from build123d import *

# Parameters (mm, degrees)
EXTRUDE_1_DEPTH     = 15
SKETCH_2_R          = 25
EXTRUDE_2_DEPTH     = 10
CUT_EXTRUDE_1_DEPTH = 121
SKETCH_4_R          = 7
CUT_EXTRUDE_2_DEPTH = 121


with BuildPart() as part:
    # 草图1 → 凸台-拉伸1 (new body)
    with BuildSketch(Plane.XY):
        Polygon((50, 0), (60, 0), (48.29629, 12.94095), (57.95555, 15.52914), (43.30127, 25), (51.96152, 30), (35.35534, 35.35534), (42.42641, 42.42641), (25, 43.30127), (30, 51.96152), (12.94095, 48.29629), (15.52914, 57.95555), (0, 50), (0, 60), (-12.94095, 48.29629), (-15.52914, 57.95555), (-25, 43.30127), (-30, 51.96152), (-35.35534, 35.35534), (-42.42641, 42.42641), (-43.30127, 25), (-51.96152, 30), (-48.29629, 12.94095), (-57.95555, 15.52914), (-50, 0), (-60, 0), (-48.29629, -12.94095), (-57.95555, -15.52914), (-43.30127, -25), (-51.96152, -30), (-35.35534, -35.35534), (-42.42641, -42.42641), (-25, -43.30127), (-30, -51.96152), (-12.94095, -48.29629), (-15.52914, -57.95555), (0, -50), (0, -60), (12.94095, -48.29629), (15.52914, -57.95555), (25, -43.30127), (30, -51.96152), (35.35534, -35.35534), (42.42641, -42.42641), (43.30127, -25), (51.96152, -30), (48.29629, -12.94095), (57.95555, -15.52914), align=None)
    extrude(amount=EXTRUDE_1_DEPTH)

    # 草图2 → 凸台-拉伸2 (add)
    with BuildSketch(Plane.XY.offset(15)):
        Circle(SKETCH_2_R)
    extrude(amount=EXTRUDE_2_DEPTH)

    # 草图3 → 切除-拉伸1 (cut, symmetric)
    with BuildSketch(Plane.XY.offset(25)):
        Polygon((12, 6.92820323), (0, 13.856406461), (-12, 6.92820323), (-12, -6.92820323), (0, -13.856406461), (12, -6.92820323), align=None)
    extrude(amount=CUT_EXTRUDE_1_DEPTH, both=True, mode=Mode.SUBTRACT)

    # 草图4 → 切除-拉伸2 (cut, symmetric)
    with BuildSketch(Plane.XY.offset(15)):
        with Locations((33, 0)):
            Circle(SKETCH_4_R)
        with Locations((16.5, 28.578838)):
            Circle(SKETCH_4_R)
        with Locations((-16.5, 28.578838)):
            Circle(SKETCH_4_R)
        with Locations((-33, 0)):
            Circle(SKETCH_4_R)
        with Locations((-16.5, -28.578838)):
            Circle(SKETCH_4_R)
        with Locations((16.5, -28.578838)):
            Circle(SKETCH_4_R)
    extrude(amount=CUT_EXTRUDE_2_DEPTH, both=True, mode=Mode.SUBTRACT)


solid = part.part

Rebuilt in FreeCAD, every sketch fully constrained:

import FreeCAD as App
import Part
import Sketcher
Q = App.Units.Quantity

doc = App.newDocument("Part")
body = doc.addObject("PartDesign::Body", "Body")

# Sketch on XY plane
sketch1 = doc.addObject("Sketcher::SketchObject", "Sketch")
body.addObject(sketch1)
sketch1.AttachmentSupport = (doc.XY_Plane, [""])
sketch1.MapMode = "FlatFace"
sketch1.addGeometry([
    Part.LineSegment(App.Vector(50, 0, 0), App.Vector(60, 0, 0)),  # 0
    Part.LineSegment(App.Vector(60, 0, 0), App.Vector(48, 13, 0)),  # 1
    Part.LineSegment(App.Vector(48, 13, 0), App.Vector(58, 16, 0)),  # 2
    Part.LineSegment(App.Vector(58, 16, 0), App.Vector(43, 25, 0)),  # 3
    Part.LineSegment(App.Vector(43, 25, 0), App.Vector(52, 30, 0)),  # 4
    Part.LineSegment(App.Vector(52, 30, 0), App.Vector(35, 35, 0)),  # 5
    Part.LineSegment(App.Vector(35, 35, 0), App.Vector(42, 42, 0)),  # 6
    Part.LineSegment(App.Vector(42, 42, 0), App.Vector(25, 43, 0)),  # 7
    Part.LineSegment(App.Vector(25, 43, 0), App.Vector(30, 52, 0)),  # 8
    Part.LineSegment(App.Vector(30, 52, 0), App.Vector(13, 48, 0)),  # 9
    Part.LineSegment(App.Vector(13, 48, 0), App.Vector(16, 58, 0)),  # 10
    Part.LineSegment(App.Vector(16, 58, 0), App.Vector(0, 50, 0)),  # 11
    Part.LineSegment(App.Vector(0, 50, 0), App.Vector(0, 60, 0)),  # 12
    Part.LineSegment(App.Vector(0, 60, 0), App.Vector(-13, 48, 0)),  # 13
    Part.LineSegment(App.Vector(-13, 48, 0), App.Vector(-16, 58, 0)),  # 14
    Part.LineSegment(App.Vector(-16, 58, 0), App.Vector(-25, 43, 0)),  # 15
    Part.LineSegment(App.Vector(-25, 43, 0), App.Vector(-30, 52, 0)),  # 16
    Part.LineSegment(App.Vector(-30, 52, 0), App.Vector(-35, 35, 0)),  # 17
    Part.LineSegment(App.Vector(-35, 35, 0), App.Vector(-42, 42, 0)),  # 18
    Part.LineSegment(App.Vector(-42, 42, 0), App.Vector(-43, 25, 0)),  # 19
    Part.LineSegment(App.Vector(-43, 25, 0), App.Vector(-52, 30, 0)),  # 20
    Part.LineSegment(App.Vector(-52, 30, 0), App.Vector(-48, 13, 0)),  # 21
    Part.LineSegment(App.Vector(-48, 13, 0), App.Vector(-58, 16, 0)),  # 22
    Part.LineSegment(App.Vector(-58, 16, 0), App.Vector(-50, 0, 0)),  # 23
    Part.LineSegment(App.Vector(-50, 0, 0), App.Vector(-60, 0, 0)),  # 24
    Part.LineSegment(App.Vector(-60, 0, 0), App.Vector(-48, -13, 0)),  # 25
    Part.LineSegment(App.Vector(-48, -13, 0), App.Vector(-58, -16, 0)),  # 26
    Part.LineSegment(App.Vector(-58, -16, 0), App.Vector(-43, -25, 0)),  # 27
    Part.LineSegment(App.Vector(-43, -25, 0), App.Vector(-52, -30, 0)),  # 28
    Part.LineSegment(App.Vector(-52, -30, 0), App.Vector(-35, -35, 0)),  # 29
    Part.LineSegment(App.Vector(-35, -35, 0), App.Vector(-42, -42, 0)),  # 30
    Part.LineSegment(App.Vector(-42, -42, 0), App.Vector(-25, -43, 0)),  # 31
    Part.LineSegment(App.Vector(-25, -43, 0), App.Vector(-30, -52, 0)),  # 32
    Part.LineSegment(App.Vector(-30, -52, 0), App.Vector(-13, -48, 0)),  # 33
    Part.LineSegment(App.Vector(-13, -48, 0), App.Vector(-16, -58, 0)),  # 34
    Part.LineSegment(App.Vector(-16, -58, 0), App.Vector(0, -50, 0)),  # 35
    Part.LineSegment(App.Vector(0, -50, 0), App.Vector(0, -60, 0)),  # 36
    Part.LineSegment(App.Vector(0, -60, 0), App.Vector(13, -48, 0)),  # 37
    Part.LineSegment(App.Vector(13, -48, 0), App.Vector(16, -58, 0)),  # 38
    Part.LineSegment(App.Vector(16, -58, 0), App.Vector(25, -43, 0)),  # 39
    Part.LineSegment(App.Vector(25, -43, 0), App.Vector(30, -52, 0)),  # 40
    Part.LineSegment(App.Vector(30, -52, 0), App.Vector(35, -35, 0)),  # 41
    Part.LineSegment(App.Vector(35, -35, 0), App.Vector(42, -42, 0)),  # 42
    Part.LineSegment(App.Vector(42, -42, 0), App.Vector(43, -25, 0)),  # 43
    Part.LineSegment(App.Vector(43, -25, 0), App.Vector(52, -30, 0)),  # 44
    Part.LineSegment(App.Vector(52, -30, 0), App.Vector(48, -13, 0)),  # 45
    Part.LineSegment(App.Vector(48, -13, 0), App.Vector(58, -16, 0)),  # 46
    Part.LineSegment(App.Vector(58, -16, 0), App.Vector(50, 0, 0)),  # 47
], False)
sketch1.addConstraint([
    Sketcher.Constraint("Coincident", 0, 2, 1, 1),
    Sketcher.Constraint("Coincident", 1, 2, 2, 1),
    Sketcher.Constraint("Coincident", 2, 2, 3, 1),
    Sketcher.Constraint("Coincident", 3, 2, 4, 1),
    Sketcher.Constraint("Coincident", 4, 2, 5, 1),
    Sketcher.Constraint("Coincident", 5, 2, 6, 1),
    Sketcher.Constraint("Coincident", 6, 2, 7, 1),
    Sketcher.Constraint("Coincident", 7, 2, 8, 1),
    Sketcher.Constraint("Coincident", 8, 2, 9, 1),
    Sketcher.Constraint("Coincident", 9, 2, 10, 1),
    Sketcher.Constraint("Coincident", 10, 2, 11, 1),
    Sketcher.Constraint("Coincident", 11, 2, 12, 1),
    Sketcher.Constraint("Coincident", 12, 2, 13, 1),
    Sketcher.Constraint("Coincident", 13, 2, 14, 1),
    Sketcher.Constraint("Coincident", 14, 2, 15, 1),
    Sketcher.Constraint("Coincident", 15, 2, 16, 1),
    Sketcher.Constraint("Coincident", 16, 2, 17, 1),
    Sketcher.Constraint("Coincident", 17, 2, 18, 1),
    Sketcher.Constraint("Coincident", 18, 2, 19, 1),
    Sketcher.Constraint("Coincident", 19, 2, 20, 1),
    Sketcher.Constraint("Coincident", 20, 2, 21, 1),
    Sketcher.Constraint("Coincident", 21, 2, 22, 1),
    Sketcher.Constraint("Coincident", 22, 2, 23, 1),
    Sketcher.Constraint("Coincident", 23, 2, 24, 1),
    Sketcher.Constraint("Coincident", 24, 2, 25, 1),
    Sketcher.Constraint("Coincident", 25, 2, 26, 1),
    Sketcher.Constraint("Coincident", 26, 2, 27, 1),
    Sketcher.Constraint("Coincident", 27, 2, 28, 1),
    Sketcher.Constraint("Coincident", 28, 2, 29, 1),
    Sketcher.Constraint("Coincident", 29, 2, 30, 1),
    Sketcher.Constraint("Coincident", 30, 2, 31, 1),
    Sketcher.Constraint("Coincident", 31, 2, 32, 1),
    Sketcher.Constraint("Coincident", 32, 2, 33, 1),
    Sketcher.Constraint("Coincident", 33, 2, 34, 1),
    Sketcher.Constraint("Coincident", 34, 2, 35, 1),
    Sketcher.Constraint("Coincident", 35, 2, 36, 1),
    Sketcher.Constraint("Coincident", 36, 2, 37, 1),
    Sketcher.Constraint("Coincident", 37, 2, 38, 1),
    Sketcher.Constraint("Coincident", 38, 2, 39, 1),
    Sketcher.Constraint("Coincident", 39, 2, 40, 1),
    Sketcher.Constraint("Coincident", 40, 2, 41, 1),
    Sketcher.Constraint("Coincident", 41, 2, 42, 1),
    Sketcher.Constraint("Coincident", 42, 2, 43, 1),
    Sketcher.Constraint("Coincident", 43, 2, 44, 1),
    Sketcher.Constraint("Coincident", 44, 2, 45, 1),
    Sketcher.Constraint("Coincident", 45, 2, 46, 1),
    Sketcher.Constraint("Coincident", 46, 2, 47, 1),
    Sketcher.Constraint("Coincident", 47, 2, 0, 1),
    Sketcher.Constraint("Horizontal", 0),
    Sketcher.Constraint("Vertical", 12),
    Sketcher.Constraint("Horizontal", 24),
    Sketcher.Constraint("Vertical", 36),
    Sketcher.Constraint("Symmetric", 0, 2, 24, 2, -1, 1),
    Sketcher.Constraint("Symmetric", 1, 2, 25, 2, -1, 1),
    Sketcher.Constraint("Symmetric", 2, 2, 26, 2, -1, 1),
    Sketcher.Constraint("Symmetric", 3, 2, 27, 2, -1, 1),
    Sketcher.Constraint("Symmetric", 4, 2, 28, 2, -1, 1),
    Sketcher.Constraint("Symmetric", 5, 2, 29, 2, -1, 1),
    Sketcher.Constraint("Symmetric", 6, 2, 30, 2, -1, 1),
    Sketcher.Constraint("Symmetric", 7, 2, 31, 2, -1, 1),
    Sketcher.Constraint("Symmetric", 8, 2, 32, 2, -1, 1),
    Sketcher.Constraint("Symmetric", 9, 2, 33, 2, -1, 1),
    Sketcher.Constraint("Symmetric", 10, 2, 34, 2, -1, 1),
    Sketcher.Constraint("Symmetric", 11, 2, 35, 2, -1, 1),
    Sketcher.Constraint("Symmetric", 13, 2, 37, 2, -1, 1),
    Sketcher.Constraint("Symmetric", 14, 2, 38, 2, -1, 1),
    Sketcher.Constraint("Symmetric", 15, 2, 39, 2, -1, 1),
    Sketcher.Constraint("Symmetric", 16, 2, 40, 2, -1, 1),
    Sketcher.Constraint("Symmetric", 17, 2, 41, 2, -1, 1),
    Sketcher.Constraint("Symmetric", 18, 2, 42, 2, -1, 1),
    Sketcher.Constraint("Symmetric", 19, 2, 43, 2, -1, 1),
    Sketcher.Constraint("Symmetric", 20, 2, 44, 2, -1, 1),
    Sketcher.Constraint("Symmetric", 21, 2, 45, 2, -1, 1),
    Sketcher.Constraint("Symmetric", 22, 2, 46, 2, -1, 1),
    Sketcher.Constraint("Symmetric", 9, 2, 13, 2, -2),
    Sketcher.Constraint("Symmetric", 10, 2, 14, 2, -2),
    Sketcher.Constraint("Symmetric", 7, 2, 15, 2, -2),
    Sketcher.Constraint("Symmetric", 8, 2, 16, 2, -2),
    Sketcher.Constraint("Symmetric", 5, 2, 17, 2, -2),
    Sketcher.Constraint("Symmetric", 6, 2, 18, 2, -2),
    Sketcher.Constraint("Symmetric", 3, 2, 19, 2, -2),
    Sketcher.Constraint("Symmetric", 4, 2, 20, 2, -2),
    Sketcher.Constraint("Symmetric", 1, 2, 21, 2, -2),
    Sketcher.Constraint("Symmetric", 2, 2, 22, 2, -2),
    Sketcher.Constraint("Symmetric", 23, 2, 47, 2, -2),
    Sketcher.Constraint("Symmetric", 12, 2, 36, 2, -1),
    Sketcher.Constraint("Perpendicular", 1, 13),
    Sketcher.Constraint("Perpendicular", 2, 14),
    Sketcher.Constraint("Perpendicular", 3, 15),
    Sketcher.Constraint("Perpendicular", 4, 16),
    Sketcher.Constraint("Perpendicular", 5, 17),
    Sketcher.Constraint("Perpendicular", 6, 18),
    Sketcher.Constraint("Perpendicular", 7, 19),
    Sketcher.Constraint("Perpendicular", 9, 21),
    Sketcher.Constraint("Perpendicular", 11, 23),
    Sketcher.Constraint("Equal", 24, 12),
    Sketcher.Constraint("Equal", 2, 6),
    Sketcher.Constraint("Equal", 3, 7),
    Sketcher.Constraint("Equal", 4, 8),
    Sketcher.Constraint("Equal", 7, 9),
    Sketcher.Constraint("Equal", 6, 10),
    Sketcher.Constraint("Equal", 1, 11),
    Sketcher.Constraint("DistanceX", 0, 1, 0, 2, 10.0),
    Sketcher.Constraint("Angle", 2, Q("14.999995 deg")),
    Sketcher.Constraint("Angle", 4, Q("30.000012 deg")),
    Sketcher.Constraint("Distance", 2, 10.000002),
    Sketcher.Constraint("DistanceX", -1, 1, 0, 2, 60.0),
    Sketcher.Constraint("DistanceY", -1, 1, 3, 2, 25.0),
    Sketcher.Constraint("DistanceY", -1, 1, 4, 2, 30.0),
    Sketcher.Constraint("DistanceY", 2, 2, 5, 2, 19.8262),
])
pad1 = doc.addObject("PartDesign::Pad", "Pad")
body.addObject(pad1)
pad1.Profile = sketch1
pad1.Length = 15

# Sketch on XY plane
sketch2 = doc.addObject("Sketcher::SketchObject", "Sketch001")
body.addObject(sketch2)
sketch2.AttachmentSupport = (doc.XY_Plane, [""])
sketch2.MapMode = "FlatFace"
sketch2.AttachmentOffset = App.Placement(App.Vector(0, 0, 15), App.Rotation())
sketch2.addGeometry(Part.Circle(App.Vector(0, 0, 0), App.Vector(0, 0, 1), 25), False)
sketch2.addConstraint([
    Sketcher.Constraint("Coincident", 0, 3, -1, 1),
    Sketcher.Constraint("Diameter", 0, 50.0),
])
pad2 = doc.addObject("PartDesign::Pad", "Pad001")
body.addObject(pad2)
pad2.Profile = sketch2
pad2.Length = 10

# Sketch on XY plane
sketch3 = doc.addObject("Sketcher::SketchObject", "Sketch002")
body.addObject(sketch3)
sketch3.AttachmentSupport = (doc.XY_Plane, [""])
sketch3.MapMode = "FlatFace"
sketch3.AttachmentOffset = App.Placement(App.Vector(0, 0, 25), App.Rotation())
sketch3.addGeometry([
    Part.LineSegment(App.Vector(12, 7, 0), App.Vector(0, 14, 0)),  # 0
    Part.LineSegment(App.Vector(0, 14, 0), App.Vector(-12, 7, 0)),  # 1
    Part.LineSegment(App.Vector(-12, 7, 0), App.Vector(-12, -7, 0)),  # 2
    Part.LineSegment(App.Vector(-12, -7, 0), App.Vector(0, -14, 0)),  # 3
    Part.LineSegment(App.Vector(0, -14, 0), App.Vector(12, -7, 0)),  # 4
    Part.LineSegment(App.Vector(12, -7, 0), App.Vector(12, 7, 0)),  # 5
], False)
sketch3.addConstraint([
    Sketcher.Constraint("Coincident", 0, 2, 1, 1),
    Sketcher.Constraint("Coincident", 1, 2, 2, 1),
    Sketcher.Constraint("Coincident", 2, 2, 3, 1),
    Sketcher.Constraint("Coincident", 3, 2, 4, 1),
    Sketcher.Constraint("Coincident", 4, 2, 5, 1),
    Sketcher.Constraint("Coincident", 5, 2, 0, 1),
    Sketcher.Constraint("Vertical", 2),
    Sketcher.Constraint("Vertical", 5),
    Sketcher.Constraint("Symmetric", 0, 2, 3, 2, -1, 1),
    Sketcher.Constraint("Symmetric", 1, 2, 4, 2, -1, 1),
    Sketcher.Constraint("PointOnObject", 0, 2, -2),
    Sketcher.Constraint("Parallel", 0, 3),
    Sketcher.Constraint("Horizontal", 2, 2, 4, 2),
    Sketcher.Constraint("Angle", 0, Q("150 deg")),
    Sketcher.Constraint("DistanceX", 1, 2, -1, 1, 12.0),
    Sketcher.Constraint("DistanceY", 2, 2, 2, 1, 13.856406),
])
pocket1 = doc.addObject("PartDesign::Pocket", "Pocket")
body.addObject(pocket1)
pocket1.Profile = sketch3
pocket1.Length = 242
pocket1.Midplane = True

# Sketch on XY plane
sketch4 = doc.addObject("Sketcher::SketchObject", "Sketch003")
body.addObject(sketch4)
sketch4.AttachmentSupport = (doc.XY_Plane, [""])
sketch4.MapMode = "FlatFace"
sketch4.AttachmentOffset = App.Placement(App.Vector(0, 0, 15), App.Rotation())
sketch4.addGeometry([
    Part.Circle(App.Vector(33, 0, 0), App.Vector(0, 0, 1), 7),  # 0
    Part.Circle(App.Vector(16, 29, 0), App.Vector(0, 0, 1), 7),  # 1
    Part.Circle(App.Vector(-16, 29, 0), App.Vector(0, 0, 1), 7),  # 2
    Part.Circle(App.Vector(-33, 0, 0), App.Vector(0, 0, 1), 7),  # 3
    Part.Circle(App.Vector(-16, -29, 0), App.Vector(0, 0, 1), 7),  # 4
    Part.Circle(App.Vector(16, -29, 0), App.Vector(0, 0, 1), 7),  # 5
], False)
sketch4.addConstraint([
    Sketcher.Constraint("Equal", 0, 1),
    Sketcher.Constraint("Equal", 1, 2),
    Sketcher.Constraint("Equal", 2, 3),
    Sketcher.Constraint("Equal", 3, 4),
    Sketcher.Constraint("Equal", 4, 5),
    Sketcher.Constraint("Symmetric", 0, 3, 3, 3, -1, 1),
    Sketcher.Constraint("Symmetric", 1, 3, 4, 3, -1, 1),
    Sketcher.Constraint("Symmetric", 2, 3, 5, 3, -1, 1),
    Sketcher.Constraint("Symmetric", 1, 3, 2, 3, -2),
    Sketcher.Constraint("PointOnObject", 0, 3, -1),
    Sketcher.Constraint("Diameter", 0, 14.0),
    Sketcher.Constraint("DistanceX", -1, 1, 0, 3, 33.0),
    Sketcher.Constraint("DistanceX", 2, 3, 1, 3, 33.0),
    Sketcher.Constraint("DistanceY", -1, 1, 1, 3, 28.578838),
])
pocket2 = doc.addObject("PartDesign::Pocket", "Pocket001")
body.addObject(pocket2)
pocket2.Profile = sketch4
pocket2.Length = 242
pocket2.Midplane = True

doc.recompute()
